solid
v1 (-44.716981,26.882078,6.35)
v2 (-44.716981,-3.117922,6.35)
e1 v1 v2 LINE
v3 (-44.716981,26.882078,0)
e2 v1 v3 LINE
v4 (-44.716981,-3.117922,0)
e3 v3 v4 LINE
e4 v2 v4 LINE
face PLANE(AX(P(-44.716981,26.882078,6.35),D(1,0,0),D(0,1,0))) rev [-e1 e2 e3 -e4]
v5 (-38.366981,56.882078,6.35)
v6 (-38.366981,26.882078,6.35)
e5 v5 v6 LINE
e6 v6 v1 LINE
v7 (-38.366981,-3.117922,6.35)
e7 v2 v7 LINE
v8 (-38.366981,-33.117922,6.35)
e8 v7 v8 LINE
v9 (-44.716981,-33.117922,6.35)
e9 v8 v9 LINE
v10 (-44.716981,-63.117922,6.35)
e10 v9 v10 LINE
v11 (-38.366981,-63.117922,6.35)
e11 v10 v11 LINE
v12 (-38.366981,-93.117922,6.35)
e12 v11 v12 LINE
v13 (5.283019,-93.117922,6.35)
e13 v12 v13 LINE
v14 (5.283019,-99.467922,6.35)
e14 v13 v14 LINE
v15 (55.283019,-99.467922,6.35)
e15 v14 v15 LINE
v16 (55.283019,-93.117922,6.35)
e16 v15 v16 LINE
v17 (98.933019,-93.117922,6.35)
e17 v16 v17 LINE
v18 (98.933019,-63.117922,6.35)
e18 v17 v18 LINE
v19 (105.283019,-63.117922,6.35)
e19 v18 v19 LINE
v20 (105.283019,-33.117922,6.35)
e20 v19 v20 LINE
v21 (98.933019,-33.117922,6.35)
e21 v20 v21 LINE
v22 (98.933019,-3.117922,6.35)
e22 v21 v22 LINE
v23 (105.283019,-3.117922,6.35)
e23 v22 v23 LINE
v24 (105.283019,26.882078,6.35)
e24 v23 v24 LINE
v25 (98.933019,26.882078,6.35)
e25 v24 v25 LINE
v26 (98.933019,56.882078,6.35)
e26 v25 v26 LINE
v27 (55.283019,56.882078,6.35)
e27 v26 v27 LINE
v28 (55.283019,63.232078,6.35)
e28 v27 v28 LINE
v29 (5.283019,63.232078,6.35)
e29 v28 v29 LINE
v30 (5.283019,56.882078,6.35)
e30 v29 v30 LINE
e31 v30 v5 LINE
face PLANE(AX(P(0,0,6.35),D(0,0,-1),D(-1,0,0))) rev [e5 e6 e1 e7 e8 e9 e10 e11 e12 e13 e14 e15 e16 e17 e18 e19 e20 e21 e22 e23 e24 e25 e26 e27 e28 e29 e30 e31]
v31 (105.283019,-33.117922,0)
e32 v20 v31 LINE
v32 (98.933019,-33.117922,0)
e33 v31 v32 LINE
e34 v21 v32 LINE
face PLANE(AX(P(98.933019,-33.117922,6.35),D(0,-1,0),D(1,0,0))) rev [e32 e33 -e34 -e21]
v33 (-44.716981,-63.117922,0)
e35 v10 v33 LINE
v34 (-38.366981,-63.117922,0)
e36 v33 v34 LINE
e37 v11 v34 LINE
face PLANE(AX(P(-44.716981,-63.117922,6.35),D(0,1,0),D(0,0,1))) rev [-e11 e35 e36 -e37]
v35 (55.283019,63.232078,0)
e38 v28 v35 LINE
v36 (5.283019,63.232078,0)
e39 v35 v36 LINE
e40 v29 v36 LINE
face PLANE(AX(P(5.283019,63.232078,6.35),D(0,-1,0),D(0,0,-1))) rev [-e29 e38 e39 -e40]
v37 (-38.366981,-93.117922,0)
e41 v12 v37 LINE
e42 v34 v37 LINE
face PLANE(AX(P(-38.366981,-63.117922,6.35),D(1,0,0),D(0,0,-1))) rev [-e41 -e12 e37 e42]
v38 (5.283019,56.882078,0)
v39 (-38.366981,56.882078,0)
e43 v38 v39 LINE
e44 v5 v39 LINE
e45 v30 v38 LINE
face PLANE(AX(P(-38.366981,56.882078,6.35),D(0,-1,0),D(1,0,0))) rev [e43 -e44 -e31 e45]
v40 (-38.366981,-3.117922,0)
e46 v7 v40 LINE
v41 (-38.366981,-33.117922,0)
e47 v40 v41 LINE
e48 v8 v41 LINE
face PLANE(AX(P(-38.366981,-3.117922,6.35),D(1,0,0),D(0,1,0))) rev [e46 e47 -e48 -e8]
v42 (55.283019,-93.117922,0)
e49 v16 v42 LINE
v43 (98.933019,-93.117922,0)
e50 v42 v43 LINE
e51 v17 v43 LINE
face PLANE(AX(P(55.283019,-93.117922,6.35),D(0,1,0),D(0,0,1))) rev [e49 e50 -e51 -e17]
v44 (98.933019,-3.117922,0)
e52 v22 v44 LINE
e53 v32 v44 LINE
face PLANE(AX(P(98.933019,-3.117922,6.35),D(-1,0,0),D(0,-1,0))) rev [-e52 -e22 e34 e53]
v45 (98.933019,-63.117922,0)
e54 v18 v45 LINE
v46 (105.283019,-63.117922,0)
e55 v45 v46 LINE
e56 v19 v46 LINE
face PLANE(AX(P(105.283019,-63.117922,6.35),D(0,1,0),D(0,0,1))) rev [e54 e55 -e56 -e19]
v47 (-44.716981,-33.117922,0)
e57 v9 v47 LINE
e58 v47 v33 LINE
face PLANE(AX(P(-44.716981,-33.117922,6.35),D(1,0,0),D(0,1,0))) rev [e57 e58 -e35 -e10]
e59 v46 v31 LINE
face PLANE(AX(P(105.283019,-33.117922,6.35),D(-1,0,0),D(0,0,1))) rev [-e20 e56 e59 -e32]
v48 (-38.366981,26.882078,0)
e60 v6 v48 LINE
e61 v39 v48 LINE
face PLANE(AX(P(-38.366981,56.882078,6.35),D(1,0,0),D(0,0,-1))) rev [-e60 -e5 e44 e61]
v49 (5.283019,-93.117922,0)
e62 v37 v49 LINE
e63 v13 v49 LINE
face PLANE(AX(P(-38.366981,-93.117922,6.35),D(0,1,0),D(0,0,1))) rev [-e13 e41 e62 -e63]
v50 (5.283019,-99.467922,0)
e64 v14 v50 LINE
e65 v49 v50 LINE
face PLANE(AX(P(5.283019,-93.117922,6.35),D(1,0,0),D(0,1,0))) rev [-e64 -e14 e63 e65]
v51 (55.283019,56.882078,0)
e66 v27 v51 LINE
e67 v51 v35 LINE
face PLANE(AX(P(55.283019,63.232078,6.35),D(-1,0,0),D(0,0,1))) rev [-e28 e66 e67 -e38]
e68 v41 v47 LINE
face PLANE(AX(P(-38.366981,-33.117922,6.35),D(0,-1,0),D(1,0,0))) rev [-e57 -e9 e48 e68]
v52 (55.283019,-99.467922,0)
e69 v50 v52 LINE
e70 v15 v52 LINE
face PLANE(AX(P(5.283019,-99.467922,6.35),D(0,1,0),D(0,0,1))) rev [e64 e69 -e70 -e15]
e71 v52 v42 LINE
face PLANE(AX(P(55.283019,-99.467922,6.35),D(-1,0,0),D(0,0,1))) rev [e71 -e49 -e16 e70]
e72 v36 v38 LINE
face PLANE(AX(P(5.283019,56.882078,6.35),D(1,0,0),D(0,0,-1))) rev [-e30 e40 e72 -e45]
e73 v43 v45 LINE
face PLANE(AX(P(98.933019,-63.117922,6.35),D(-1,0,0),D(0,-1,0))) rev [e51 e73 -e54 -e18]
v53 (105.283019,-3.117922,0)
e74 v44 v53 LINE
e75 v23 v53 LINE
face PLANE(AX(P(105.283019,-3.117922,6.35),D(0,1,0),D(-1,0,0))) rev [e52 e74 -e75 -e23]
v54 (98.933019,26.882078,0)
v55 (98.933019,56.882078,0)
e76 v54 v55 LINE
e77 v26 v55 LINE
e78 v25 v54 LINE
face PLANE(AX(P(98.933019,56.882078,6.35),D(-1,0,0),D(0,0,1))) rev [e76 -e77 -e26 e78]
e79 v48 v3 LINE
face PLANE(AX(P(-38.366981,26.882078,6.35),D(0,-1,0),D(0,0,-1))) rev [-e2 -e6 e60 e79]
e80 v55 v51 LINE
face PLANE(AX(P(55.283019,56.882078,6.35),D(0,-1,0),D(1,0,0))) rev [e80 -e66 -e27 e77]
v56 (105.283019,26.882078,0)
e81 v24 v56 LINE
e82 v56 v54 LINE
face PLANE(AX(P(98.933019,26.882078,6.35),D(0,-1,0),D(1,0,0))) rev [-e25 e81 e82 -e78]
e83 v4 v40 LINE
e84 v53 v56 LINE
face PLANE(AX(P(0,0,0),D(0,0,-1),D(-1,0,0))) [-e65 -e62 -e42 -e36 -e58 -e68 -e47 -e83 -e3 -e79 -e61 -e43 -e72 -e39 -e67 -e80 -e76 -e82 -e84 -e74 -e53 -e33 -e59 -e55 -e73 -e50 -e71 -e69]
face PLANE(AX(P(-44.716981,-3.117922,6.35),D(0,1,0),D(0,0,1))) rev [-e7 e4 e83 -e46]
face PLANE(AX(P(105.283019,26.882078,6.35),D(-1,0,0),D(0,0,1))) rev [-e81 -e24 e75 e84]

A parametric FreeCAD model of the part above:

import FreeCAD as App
import Part
import Sketcher

V = App.Vector
Q = App.Units.Quantity

doc = App.newDocument("Part")
body = doc.addObject("PartDesign::Body", "Body")

sketch1 = body.newObject("Sketcher::SketchObject", "Sketch")
sketch1.AttachmentSupport = (doc.getObject("XY_Plane"), [""])
sketch1.MapMode = "FlatFace"
sketch1.addGeometry([
    Part.LineSegment(V(105, -63, 0), V(105, -33, 0)),
    Part.LineSegment(V(105, -33, 0), V(99, -33, 0)),
    Part.LineSegment(V(99, -33, 0), V(99, -3, 0)),
    Part.LineSegment(V(99, -3, 0), V(105, -3, 0)),
    Part.LineSegment(V(105, -3, 0), V(105, 27, 0)),
    Part.LineSegment(V(105, 27, 0), V(99, 27, 0)),
    Part.LineSegment(V(99, 27, 0), V(99, 57, 0)),
    Part.LineSegment(V(99, 57, 0), V(55, 57, 0)),
    Part.LineSegment(V(55, 57, 0), V(55, 63, 0)),
    Part.LineSegment(V(55, 63, 0), V(5, 63, 0)),
    Part.LineSegment(V(5, 63, 0), V(5, 57, 0)),
    Part.LineSegment(V(5, 57, 0), V(-38, 57, 0)),
    Part.LineSegment(V(-38, 57, 0), V(-38, 27, 0)),
    Part.LineSegment(V(-38, 27, 0), V(-45, 27, 0)),
    Part.LineSegment(V(-45, 27, 0), V(-45, -3, 0)),
    Part.LineSegment(V(-45, -3, 0), V(-38, -3, 0)),
    Part.LineSegment(V(-38, -3, 0), V(-38, -33, 0)),
    Part.LineSegment(V(-38, -33, 0), V(-45, -33, 0)),
    Part.LineSegment(V(-45, -33, 0), V(-45, -63, 0)),
    Part.LineSegment(V(-45, -63, 0), V(-38, -63, 0)),
    Part.LineSegment(V(-38, -63, 0), V(-38, -93, 0)),
    Part.LineSegment(V(-38, -93, 0), V(5, -93, 0)),
    Part.LineSegment(V(5, -93, 0), V(5, -99, 0)),
    Part.LineSegment(V(5, -99, 0), V(55, -99, 0)),
    Part.LineSegment(V(55, -99, 0), V(55, -93, 0)),
    Part.LineSegment(V(55, -93, 0), V(99, -93, 0)),
    Part.LineSegment(V(99, -93, 0), V(99, -63, 0)),
    Part.LineSegment(V(99, -63, 0), V(105, -63, 0)),
], False)
sketch1.addConstraint([
    Sketcher.Constraint("Coincident", 0, 2, 1, 1),
    Sketcher.Constraint("Coincident", 1, 2, 2, 1),
    Sketcher.Constraint("Coincident", 2, 2, 3, 1),
    Sketcher.Constraint("Coincident", 3, 2, 4, 1),
    Sketcher.Constraint("Coincident", 4, 2, 5, 1),
    Sketcher.Constraint("Coincident", 5, 2, 6, 1),
    Sketcher.Constraint("Coincident", 6, 2, 7, 1),
    Sketcher.Constraint("Coincident", 7, 2, 8, 1),
    Sketcher.Constraint("Coincident", 8, 2, 9, 1),
    Sketcher.Constraint("Coincident", 9, 2, 10, 1),
    Sketcher.Constraint("Coincident", 10, 2, 11, 1),
    Sketcher.Constraint("Coincident", 11, 2, 12, 1),
    Sketcher.Constraint("Coincident", 12, 2, 13, 1),
    Sketcher.Constraint("Coincident", 13, 2, 14, 1),
    Sketcher.Constraint("Coincident", 14, 2, 15, 1),
    Sketcher.Constraint("Coincident", 15, 2, 16, 1),
    Sketcher.Constraint("Coincident", 16, 2, 17, 1),
    Sketcher.Constraint("Coincident", 17, 2, 18, 1),
    Sketcher.Constraint("Coincident", 18, 2, 19, 1),
    Sketcher.Constraint("Coincident", 19, 2, 20, 1),
    Sketcher.Constraint("Coincident", 20, 2, 21, 1),
    Sketcher.Constraint("Coincident", 21, 2, 22, 1),
    Sketcher.Constraint("Coincident", 22, 2, 23, 1),
    Sketcher.Constraint("Coincident", 23, 2, 24, 1),
    Sketcher.Constraint("Coincident", 24, 2, 25, 1),
    Sketcher.Constraint("Coincident", 25, 2, 26, 1),
    Sketcher.Constraint("Coincident", 26, 2, 27, 1),
    Sketcher.Constraint("Coincident", 27, 2, 0, 1),
    Sketcher.Constraint("Vertical", 0),
    Sketcher.Constraint("Horizontal", 1),
    Sketcher.Constraint("Vertical", 2),
    Sketcher.Constraint("Horizontal", 3),
    Sketcher.Constraint("Vertical", 4),
    Sketcher.Constraint("Horizontal", 5),
    Sketcher.Constraint("Vertical", 6),
    Sketcher.Constraint("Horizontal", 7),
    Sketcher.Constraint("Vertical", 8),
    Sketcher.Constraint("Horizontal", 9),
    Sketcher.Constraint("Vertical", 10),
    Sketcher.Constraint("Horizontal", 11),
    Sketcher.Constraint("Vertical", 12),
    Sketcher.Constraint("Horizontal", 13),
    Sketcher.Constraint("Vertical", 14),
    Sketcher.Constraint("Horizontal", 15),
    Sketcher.Constraint("Vertical", 16),
    Sketcher.Constraint("Horizontal", 17),
    Sketcher.Constraint("Vertical", 18),
    Sketcher.Constraint("Horizontal", 19),
    Sketcher.Constraint("Vertical", 20),
    Sketcher.Constraint("Horizontal", 21),
    Sketcher.Constraint("Vertical", 22),
    Sketcher.Constraint("Horizontal", 23),
    Sketcher.Constraint("Vertical", 24),
    Sketcher.Constraint("Horizontal", 25),
    Sketcher.Constraint("Vertical", 26),
    Sketcher.Constraint("Horizontal", 27),
    Sketcher.Constraint("Horizontal", 7, 2, 10, 2),
    Sketcher.Constraint("Horizontal", 5, 2, 12, 2),
    Sketcher.Constraint("Horizontal", 3, 2, 14, 2),
    Sketcher.Constraint("Horizontal", 1, 2, 16, 2),
    Sketcher.Constraint("Horizontal", 21, 2, 24, 2),
    Sketcher.Constraint("Horizontal", 19, 2, 26, 2),
    Sketcher.Constraint("Vertical", 0, 2, 3, 2),
    Sketcher.Constraint("Vertical", 2, 2, 5, 2),
    Sketcher.Constraint("Vertical", 12, 2, 15, 2),
    Sketcher.Constraint("Vertical", 14, 2, 17, 2),
    Sketcher.Constraint("Vertical", 16, 2, 19, 2),
    Sketcher.Constraint("Vertical", 10, 2, 21, 2),
    Sketcher.Constraint("Vertical", 8, 2, 23, 2),
    Sketcher.Constraint("Vertical", 6, 2, 25, 2),
    Sketcher.Constraint("Equal", 7, 11),
    Sketcher.Constraint("Equal", 5, 13),
    Sketcher.Constraint("Equal", 0, 2),
    Sketcher.Constraint("Equal", 2, 4),
    Sketcher.Constraint("Equal", 4, 6),
    Sketcher.Constraint("Equal", 27, 8),
    Sketcher.Constraint("Equal", 18, 20),
    Sketcher.Constraint("Equal", 10, 22),
    Sketcher.Constraint("DistanceX", 9, 2, 9, 1, Q("50 mm")),
    Sketcher.Constraint("DistanceY", 0, 1, 0, 2, Q("30 mm")),
    Sketcher.Constraint("DistanceX", 7, 2, 4, 2, Q("50 mm")),
    Sketcher.Constraint("DistanceX", 1, 2, 1, 1, Q("6.35 mm")),
    Sketcher.Constraint("DistanceX", -1, 1, 0, 2, Q("105.283019 mm")),
    Sketcher.Constraint("DistanceY", 0, 2, -1, 1, Q("33.117922 mm")),
])
pad1 = body.newObject("PartDesign::Pad", "Pad")
pad1.Profile = sketch1
pad1.Length = 6.35

doc.recompute()
